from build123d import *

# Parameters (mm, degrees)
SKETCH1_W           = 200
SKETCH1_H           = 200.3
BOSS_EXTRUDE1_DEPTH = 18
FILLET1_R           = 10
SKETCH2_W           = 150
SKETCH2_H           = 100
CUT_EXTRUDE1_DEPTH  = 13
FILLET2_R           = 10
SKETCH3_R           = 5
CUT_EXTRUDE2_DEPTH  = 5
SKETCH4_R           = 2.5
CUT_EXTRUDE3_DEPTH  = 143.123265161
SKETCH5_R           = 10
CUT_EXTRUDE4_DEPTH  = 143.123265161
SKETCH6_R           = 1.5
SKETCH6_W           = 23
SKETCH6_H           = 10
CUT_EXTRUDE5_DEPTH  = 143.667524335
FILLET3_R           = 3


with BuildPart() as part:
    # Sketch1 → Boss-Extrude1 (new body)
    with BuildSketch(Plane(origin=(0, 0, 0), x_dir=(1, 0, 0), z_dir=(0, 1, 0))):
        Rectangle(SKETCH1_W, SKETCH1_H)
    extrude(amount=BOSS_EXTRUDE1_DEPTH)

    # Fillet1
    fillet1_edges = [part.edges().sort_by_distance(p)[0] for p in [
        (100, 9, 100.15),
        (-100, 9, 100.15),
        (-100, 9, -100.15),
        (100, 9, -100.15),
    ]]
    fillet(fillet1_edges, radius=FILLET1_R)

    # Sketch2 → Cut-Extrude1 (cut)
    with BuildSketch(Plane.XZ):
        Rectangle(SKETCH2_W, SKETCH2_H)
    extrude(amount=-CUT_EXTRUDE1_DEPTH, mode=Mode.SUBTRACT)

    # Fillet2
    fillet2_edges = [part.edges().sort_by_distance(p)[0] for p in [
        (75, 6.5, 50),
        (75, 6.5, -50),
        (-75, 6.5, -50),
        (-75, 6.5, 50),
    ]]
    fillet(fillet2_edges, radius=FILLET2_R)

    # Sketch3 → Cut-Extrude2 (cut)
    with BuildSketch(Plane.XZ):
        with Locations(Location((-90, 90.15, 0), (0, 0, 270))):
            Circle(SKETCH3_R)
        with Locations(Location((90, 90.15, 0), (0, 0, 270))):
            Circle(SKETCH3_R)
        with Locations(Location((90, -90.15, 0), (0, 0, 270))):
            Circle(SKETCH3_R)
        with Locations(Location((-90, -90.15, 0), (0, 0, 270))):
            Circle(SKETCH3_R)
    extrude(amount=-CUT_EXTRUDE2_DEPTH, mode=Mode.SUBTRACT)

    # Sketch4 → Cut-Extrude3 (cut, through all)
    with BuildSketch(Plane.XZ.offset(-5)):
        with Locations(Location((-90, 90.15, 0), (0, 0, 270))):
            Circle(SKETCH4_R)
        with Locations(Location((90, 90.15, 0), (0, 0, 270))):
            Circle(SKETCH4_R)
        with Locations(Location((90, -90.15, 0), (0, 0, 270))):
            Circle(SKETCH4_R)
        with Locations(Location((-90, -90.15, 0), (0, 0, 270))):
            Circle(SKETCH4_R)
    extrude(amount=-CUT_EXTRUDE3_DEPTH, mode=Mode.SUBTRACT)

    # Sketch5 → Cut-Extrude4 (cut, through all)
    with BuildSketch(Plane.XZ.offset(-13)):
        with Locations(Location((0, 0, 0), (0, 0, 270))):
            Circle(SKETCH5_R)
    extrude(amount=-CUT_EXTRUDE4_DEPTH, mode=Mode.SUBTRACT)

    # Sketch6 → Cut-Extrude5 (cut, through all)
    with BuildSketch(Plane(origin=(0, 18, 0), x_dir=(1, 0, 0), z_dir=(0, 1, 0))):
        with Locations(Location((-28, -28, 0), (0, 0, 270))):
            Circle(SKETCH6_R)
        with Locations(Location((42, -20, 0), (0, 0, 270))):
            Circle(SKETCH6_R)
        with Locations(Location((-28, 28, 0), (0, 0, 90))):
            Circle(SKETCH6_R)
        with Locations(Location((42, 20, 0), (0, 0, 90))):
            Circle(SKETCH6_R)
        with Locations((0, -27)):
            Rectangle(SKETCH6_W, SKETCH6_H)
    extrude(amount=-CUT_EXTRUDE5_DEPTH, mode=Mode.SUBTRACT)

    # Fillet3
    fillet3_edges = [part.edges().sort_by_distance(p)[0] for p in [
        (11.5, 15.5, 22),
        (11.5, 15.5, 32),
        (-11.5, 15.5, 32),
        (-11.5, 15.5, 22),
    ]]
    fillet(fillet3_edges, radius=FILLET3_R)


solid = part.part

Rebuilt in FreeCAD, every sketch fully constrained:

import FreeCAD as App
import Part
import Sketcher

V = App.Vector
Q = App.Units.Quantity


def edges_at(feature, points):
    """Names of the edges that pass closest to the given points."""
    edges = feature.Shape.Edges
    near = lambda p: min(range(len(edges)), key=lambda i: edges[i].distToShape(Part.Vertex(*p))[0])
    return sorted({f"Edge{near(p) + 1}" for p in points})

doc = App.newDocument("Part")
body = doc.addObject("PartDesign::Body", "Body")

# Sketch on XZ plane
sketch1 = body.newObject("Sketcher::SketchObject", "Sketch")
sketch1.AttachmentSupport = (doc.getObject("XZ_Plane"), [""])
sketch1.MapMode = "FlatFace"
sketch1.addGeometry([
    Part.LineSegment(V(-100, -100, 0), V(-100, 100, 0)),
    Part.LineSegment(V(-100, 100, 0), V(100, 100, 0)),
    Part.LineSegment(V(100, 100, 0), V(100, -100, 0)),
    Part.LineSegment(V(100, -100, 0), V(-100, -100, 0)),
], False)
sketch1.addConstraint([
    Sketcher.Constraint("Coincident", 0, 2, 1, 1),
    Sketcher.Constraint("Coincident", 1, 2, 2, 1),
    Sketcher.Constraint("Coincident", 2, 2, 3, 1),
    Sketcher.Constraint("Coincident", 3, 2, 0, 1),
    Sketcher.Constraint("Vertical", 0),
    Sketcher.Constraint("Horizontal", 1),
    Sketcher.Constraint("Vertical", 2),
    Sketcher.Constraint("Horizontal", 3),
    Sketcher.Constraint("Symmetric", 0, 2, 2, 2, -1, 1),
    Sketcher.Constraint("DistanceX", 1, 1, 1, 2, Q("200 mm")),
    Sketcher.Constraint("DistanceY", 0, 1, 0, 2, Q("200.3 mm")),
])
pad1 = body.newObject("PartDesign::Pad", "Pad")
pad1.Profile = sketch1
pad1.Length = 18
pad1.Reversed = True
doc.recompute()

fillet = body.newObject("PartDesign::Fillet", "Fillet")
fillet.Base = (pad1, edges_at(pad1, [
    (100, 9, 100.15),
    (-100, 9, 100.15),
    (-100, 9, -100.15),
    (100, 9, -100.15),
]))
fillet.Radius = 10

# Sketch on XZ plane
sketch2 = body.newObject("Sketcher::SketchObject", "Sketch001")
sketch2.AttachmentSupport = (doc.getObject("XZ_Plane"), [""])
sketch2.MapMode = "FlatFace"
sketch2.addGeometry([
    Part.LineSegment(V(-75, 50, 0), V(-75, -50, 0)),
    Part.LineSegment(V(-75, -50, 0), V(75, -50, 0)),
    Part.LineSegment(V(75, -50, 0), V(75, 50, 0)),
    Part.LineSegment(V(75, 50, 0), V(-75, 50, 0)),
], False)
sketch2.addConstraint([
    Sketcher.Constraint("Coincident", 0, 2, 1, 1),
    Sketcher.Constraint("Coincident", 1, 2, 2, 1),
    Sketcher.Constraint("Coincident", 2, 2, 3, 1),
    Sketcher.Constraint("Coincident", 3, 2, 0, 1),
    Sketcher.Constraint("Vertical", 0),
    Sketcher.Constraint("Horizontal", 1),
    Sketcher.Constraint("Vertical", 2),
    Sketcher.Constraint("Horizontal", 3),
    Sketcher.Constraint("Symmetric", 0, 2, 2, 2, -1, 1),
    Sketcher.Constraint("DistanceX", 1, 1, 1, 2, Q("150 mm")),
    Sketcher.Constraint("DistanceY", 0, 2, 0, 1, Q("100 mm")),
])
pocket1 = body.newObject("PartDesign::Pocket", "Pocket")
pocket1.Profile = sketch2
pocket1.Length = 13
doc.recompute()

fillet2 = body.newObject("PartDesign::Fillet", "Fillet001")
fillet2.Base = (pocket1, edges_at(pocket1, [
    (75, 6.5, 50),
    (75, 6.5, -50),
    (-75, 6.5, -50),
    (-75, 6.5, 50),
]))
fillet2.Radius = 10

# Sketch on XZ plane
sketch3 = body.newObject("Sketcher::SketchObject", "Sketch002")
sketch3.AttachmentSupport = (doc.getObject("XZ_Plane"), [""])
sketch3.MapMode = "FlatFace"
sketch3.addGeometry([
    Part.Circle(V(-90, 90, 0), V(0, 0, 1), 5),
    Part.Circle(V(90, 90, 0), V(0, 0, 1), 5),
    Part.Circle(V(90, -90, 0), V(0, 0, 1), 5),
    Part.Circle(V(-90, -90, 0), V(0, 0, 1), 5),
], False)
sketch3.addConstraint([
    Sketcher.Constraint("Equal", 0, 1),
    Sketcher.Constraint("Equal", 1, 2),
    Sketcher.Constraint("Equal", 2, 3),
    Sketcher.Constraint("Symmetric", 0, 3, 2, 3, -1, 1),
    Sketcher.Constraint("Symmetric", 1, 3, 3, 3, -1, 1),
    Sketcher.Constraint("Symmetric", 0, 3, 1, 3, -2),
    Sketcher.Constraint("Diameter", 0, Q("10 mm")),
    Sketcher.Constraint("DistanceX", 0, 3, -1, 1, Q("90 mm")),
    Sketcher.Constraint("DistanceY", 2, 3, 1, 3, Q("180.3 mm")),
])
pocket2 = body.newObject("PartDesign::Pocket", "Pocket001")
pocket2.Profile = sketch3
pocket2.Length = 5

# Sketch on XZ plane
sketch4 = body.newObject("Sketcher::SketchObject", "Sketch003")
sketch4.AttachmentSupport = (doc.getObject("XZ_Plane"), [""])
sketch4.MapMode = "FlatFace"
sketch4.AttachmentOffset = App.Placement(V(0, 0, -5), App.Rotation())
sketch4.addGeometry([
    Part.Circle(V(-90, 90.2, 0), V(0, 0, 1), 2.5),
    Part.Circle(V(90, 90.2, 0), V(0, 0, 1), 2.5),
    Part.Circle(V(90, -90.2, 0), V(0, 0, 1), 2.5),
    Part.Circle(V(-90, -90.2, 0), V(0, 0, 1), 2.5),
], False)
sketch4.addConstraint([
    Sketcher.Constraint("Equal", 0, 1),
    Sketcher.Constraint("Equal", 1, 2),
    Sketcher.Constraint("Equal", 2, 3),
    Sketcher.Constraint("Symmetric", 0, 3, 2, 3, -1, 1),
    Sketcher.Constraint("Symmetric", 1, 3, 3, 3, -1, 1),
    Sketcher.Constraint("Symmetric", 0, 3, 1, 3, -2),
    Sketcher.Constraint("Diameter", 0, Q("5 mm")),
    Sketcher.Constraint("DistanceX", 0, 3, -1, 1, Q("90 mm")),
    Sketcher.Constraint("DistanceY", 2, 3, 1, 3, Q("180.3 mm")),
])
pocket3 = body.newObject("PartDesign::Pocket", "Pocket002")
pocket3.Profile = sketch4
pocket3.Type = "ThroughAll"

# Sketch on XZ plane
sketch5 = body.newObject("Sketcher::SketchObject", "Sketch004")
sketch5.AttachmentSupport = (doc.getObject("XZ_Plane"), [""])
sketch5.MapMode = "FlatFace"
sketch5.AttachmentOffset = App.Placement(V(0, 0, -13), App.Rotation())
sketch5.addGeometry(Part.Circle(V(0, 0, 0), V(0, 0, 1), 10), False)
sketch5.addConstraint([
    Sketcher.Constraint("Coincident", 0, 3, -1, 1),
    Sketcher.Constraint("Diameter", 0, Q("20 mm")),
])
pocket4 = body.newObject("PartDesign::Pocket", "Pocket003")
pocket4.Profile = sketch5
pocket4.Type = "ThroughAll"

# Sketch on XZ plane
sketch6 = body.newObject("Sketcher::SketchObject", "Sketch005")
sketch6.AttachmentSupport = (doc.getObject("XZ_Plane"), [""])
sketch6.MapMode = "FlatFace"
sketch6.AttachmentOffset = App.Placement(V(0, 0, -18), App.Rotation())
sketch6.addGeometry([
    Part.Circle(V(-28, 28, 0), V(0, 0, 1), 1.5),  # 0
    Part.Circle(V(42, 20, 0), V(0, 0, 1), 1.5),  # 1
    Part.Circle(V(-28, -28, 0), V(0, 0, 1), 1.5),  # 2
    Part.Circle(V(42, -20, 0), V(0, 0, 1), 1.5),  # 3
    Part.LineSegment(V(-11.5, 22, 0), V(-11.5, 32, 0)),  # 4
    Part.LineSegment(V(-11.5, 32, 0), V(11.5, 32, 0)),  # 5
    Part.LineSegment(V(11.5, 32, 0), V(11.5, 22, 0)),  # 6
    Part.LineSegment(V(11.5, 22, 0), V(-11.5, 22, 0)),  # 7
], False)
sketch6.addConstraint([
    Sketcher.Constraint("Coincident", 4, 2, 5, 1),
    Sketcher.Constraint("Coincident", 5, 2, 6, 1),
    Sketcher.Constraint("Coincident", 6, 2, 7, 1),
    Sketcher.Constraint("Coincident", 7, 2, 4, 1),
    Sketcher.Constraint("Vertical", 4),
    Sketcher.Constraint("Horizontal", 5),
    Sketcher.Constraint("Vertical", 6),
    Sketcher.Constraint("Horizontal", 7),
    Sketcher.Constraint("Equal", 0, 1),
    Sketcher.Constraint("Equal", 1, 2),
    Sketcher.Constraint("Equal", 2, 3),
    Sketcher.Constraint("Symmetric", 0, 3, 2, 3, -1),
    Sketcher.Constraint("Symmetric", 1, 3, 3, 3, -1),
    Sketcher.Constraint("Diameter", 0, Q("3 mm")),
    Sketcher.Constraint("DistanceX", 5, 1, 5, 2, Q("23 mm")),
    Sketcher.Constraint("DistanceY", 4, 1, 4, 2, Q("10 mm")),
    Sketcher.Constraint("DistanceX", 0, 3, -1, 1, Q("28 mm")),
    Sketcher.Constraint("DistanceY", -1, 1, 0, 3, Q("28 mm")),
    Sketcher.Constraint("DistanceX", -1, 1, 1, 3, Q("42 mm")),
    Sketcher.Constraint("DistanceY", -1, 1, 1, 3, Q("20 mm")),
    Sketcher.Constraint("DistanceY", -1, 1, 4, 2, Q("32 mm")),
    Sketcher.Constraint("DistanceX", 4, 2, -1, 1, Q("11.5 mm")),
])
pocket5 = body.newObject("PartDesign::Pocket", "Pocket004")
pocket5.Profile = sketch6
pocket5.Type = "ThroughAll"
pocket5.Reversed = True
doc.recompute()

fillet3 = body.newObject("PartDesign::Fillet", "Fillet002")
fillet3.Base = (pocket5, edges_at(pocket5, [
    (11.5, 15.5, 22),
    (11.5, 15.5, 32),
    (-11.5, 15.5, 32),
    (-11.5, 15.5, 22),
]))
fillet3.Radius = 3

doc.recompute()
